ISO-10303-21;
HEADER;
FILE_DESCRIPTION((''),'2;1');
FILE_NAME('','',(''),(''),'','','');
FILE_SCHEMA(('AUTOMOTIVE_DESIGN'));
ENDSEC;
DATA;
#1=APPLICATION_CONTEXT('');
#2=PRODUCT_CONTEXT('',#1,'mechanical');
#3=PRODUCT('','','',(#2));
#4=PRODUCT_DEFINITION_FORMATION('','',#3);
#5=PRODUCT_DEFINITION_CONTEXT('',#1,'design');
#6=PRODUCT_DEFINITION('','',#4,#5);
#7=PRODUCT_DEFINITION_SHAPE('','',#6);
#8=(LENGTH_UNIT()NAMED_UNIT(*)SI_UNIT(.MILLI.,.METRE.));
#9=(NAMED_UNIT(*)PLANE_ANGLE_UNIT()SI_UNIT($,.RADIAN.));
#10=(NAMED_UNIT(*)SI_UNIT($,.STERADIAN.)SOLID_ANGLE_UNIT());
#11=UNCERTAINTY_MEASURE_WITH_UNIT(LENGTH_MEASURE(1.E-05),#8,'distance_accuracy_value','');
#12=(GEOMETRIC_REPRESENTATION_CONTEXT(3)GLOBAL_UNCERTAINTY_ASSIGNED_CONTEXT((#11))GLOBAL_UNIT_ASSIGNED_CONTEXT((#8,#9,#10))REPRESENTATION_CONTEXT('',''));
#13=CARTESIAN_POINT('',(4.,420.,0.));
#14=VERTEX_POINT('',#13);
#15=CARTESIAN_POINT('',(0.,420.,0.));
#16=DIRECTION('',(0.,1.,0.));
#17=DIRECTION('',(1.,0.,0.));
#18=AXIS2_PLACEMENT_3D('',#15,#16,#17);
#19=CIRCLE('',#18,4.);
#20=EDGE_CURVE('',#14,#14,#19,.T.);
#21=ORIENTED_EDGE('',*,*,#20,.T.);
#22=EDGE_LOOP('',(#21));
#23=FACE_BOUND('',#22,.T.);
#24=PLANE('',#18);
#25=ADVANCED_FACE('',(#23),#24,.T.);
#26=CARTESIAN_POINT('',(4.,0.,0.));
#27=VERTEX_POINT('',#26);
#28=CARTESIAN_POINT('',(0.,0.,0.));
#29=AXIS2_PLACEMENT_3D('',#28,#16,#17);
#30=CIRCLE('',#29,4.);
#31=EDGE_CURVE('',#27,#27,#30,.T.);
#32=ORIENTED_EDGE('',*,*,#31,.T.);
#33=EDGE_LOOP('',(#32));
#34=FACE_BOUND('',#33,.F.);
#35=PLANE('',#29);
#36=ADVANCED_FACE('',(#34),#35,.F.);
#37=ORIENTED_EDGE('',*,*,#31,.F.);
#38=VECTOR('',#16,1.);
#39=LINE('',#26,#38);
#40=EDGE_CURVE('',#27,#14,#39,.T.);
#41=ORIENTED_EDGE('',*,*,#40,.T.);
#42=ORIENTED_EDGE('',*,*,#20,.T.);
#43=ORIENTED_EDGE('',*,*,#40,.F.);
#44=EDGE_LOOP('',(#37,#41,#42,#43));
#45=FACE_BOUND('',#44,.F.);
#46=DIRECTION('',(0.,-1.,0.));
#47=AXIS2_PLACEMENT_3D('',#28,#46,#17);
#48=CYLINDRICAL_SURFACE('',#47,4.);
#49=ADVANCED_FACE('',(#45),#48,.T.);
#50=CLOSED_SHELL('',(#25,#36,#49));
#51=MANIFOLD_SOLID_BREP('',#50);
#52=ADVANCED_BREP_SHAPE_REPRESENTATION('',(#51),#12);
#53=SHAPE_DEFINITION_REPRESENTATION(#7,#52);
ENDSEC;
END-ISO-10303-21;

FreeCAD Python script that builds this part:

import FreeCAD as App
import Part
import Sketcher

doc = App.newDocument("Part")
params = doc.addObject("Spreadsheet::Sheet", "Params")
for row, (alias, value) in enumerate([
    ("sketch1_diameter", "8 mm"),
    ("pad1_length", "420 mm"),
], start=1):
    params.set(f"A{row}", alias)
    params.set(f"B{row}", "=" + value)
    params.setAlias(f"B{row}", alias)

body = doc.addObject("PartDesign::Body", "Body")

sketch1 = doc.addObject("Sketcher::SketchObject", "Sketch")
body.addObject(sketch1)
sketch1.AttachmentSupport = (doc.XZ_Plane, [""])
sketch1.MapMode = "FlatFace"
sketch1.addGeometry(Part.Circle(App.Vector(0, 0, 0), App.Vector(0, 0, 1), 4), False)
sketch1.addConstraint([
    Sketcher.Constraint("Coincident", 0, 3, -1, 1),
    Sketcher.Constraint("Diameter", 0, 8.0),
])
sketch1.setExpression("Constraints[1]", "Params.sketch1_diameter")
pad1 = doc.addObject("PartDesign::Pad", "Pad")
body.addObject(pad1)
pad1.Profile = sketch1
pad1.setExpression("Length", "Params.pad1_length")
pad1.Reversed = True

doc.recompute()
